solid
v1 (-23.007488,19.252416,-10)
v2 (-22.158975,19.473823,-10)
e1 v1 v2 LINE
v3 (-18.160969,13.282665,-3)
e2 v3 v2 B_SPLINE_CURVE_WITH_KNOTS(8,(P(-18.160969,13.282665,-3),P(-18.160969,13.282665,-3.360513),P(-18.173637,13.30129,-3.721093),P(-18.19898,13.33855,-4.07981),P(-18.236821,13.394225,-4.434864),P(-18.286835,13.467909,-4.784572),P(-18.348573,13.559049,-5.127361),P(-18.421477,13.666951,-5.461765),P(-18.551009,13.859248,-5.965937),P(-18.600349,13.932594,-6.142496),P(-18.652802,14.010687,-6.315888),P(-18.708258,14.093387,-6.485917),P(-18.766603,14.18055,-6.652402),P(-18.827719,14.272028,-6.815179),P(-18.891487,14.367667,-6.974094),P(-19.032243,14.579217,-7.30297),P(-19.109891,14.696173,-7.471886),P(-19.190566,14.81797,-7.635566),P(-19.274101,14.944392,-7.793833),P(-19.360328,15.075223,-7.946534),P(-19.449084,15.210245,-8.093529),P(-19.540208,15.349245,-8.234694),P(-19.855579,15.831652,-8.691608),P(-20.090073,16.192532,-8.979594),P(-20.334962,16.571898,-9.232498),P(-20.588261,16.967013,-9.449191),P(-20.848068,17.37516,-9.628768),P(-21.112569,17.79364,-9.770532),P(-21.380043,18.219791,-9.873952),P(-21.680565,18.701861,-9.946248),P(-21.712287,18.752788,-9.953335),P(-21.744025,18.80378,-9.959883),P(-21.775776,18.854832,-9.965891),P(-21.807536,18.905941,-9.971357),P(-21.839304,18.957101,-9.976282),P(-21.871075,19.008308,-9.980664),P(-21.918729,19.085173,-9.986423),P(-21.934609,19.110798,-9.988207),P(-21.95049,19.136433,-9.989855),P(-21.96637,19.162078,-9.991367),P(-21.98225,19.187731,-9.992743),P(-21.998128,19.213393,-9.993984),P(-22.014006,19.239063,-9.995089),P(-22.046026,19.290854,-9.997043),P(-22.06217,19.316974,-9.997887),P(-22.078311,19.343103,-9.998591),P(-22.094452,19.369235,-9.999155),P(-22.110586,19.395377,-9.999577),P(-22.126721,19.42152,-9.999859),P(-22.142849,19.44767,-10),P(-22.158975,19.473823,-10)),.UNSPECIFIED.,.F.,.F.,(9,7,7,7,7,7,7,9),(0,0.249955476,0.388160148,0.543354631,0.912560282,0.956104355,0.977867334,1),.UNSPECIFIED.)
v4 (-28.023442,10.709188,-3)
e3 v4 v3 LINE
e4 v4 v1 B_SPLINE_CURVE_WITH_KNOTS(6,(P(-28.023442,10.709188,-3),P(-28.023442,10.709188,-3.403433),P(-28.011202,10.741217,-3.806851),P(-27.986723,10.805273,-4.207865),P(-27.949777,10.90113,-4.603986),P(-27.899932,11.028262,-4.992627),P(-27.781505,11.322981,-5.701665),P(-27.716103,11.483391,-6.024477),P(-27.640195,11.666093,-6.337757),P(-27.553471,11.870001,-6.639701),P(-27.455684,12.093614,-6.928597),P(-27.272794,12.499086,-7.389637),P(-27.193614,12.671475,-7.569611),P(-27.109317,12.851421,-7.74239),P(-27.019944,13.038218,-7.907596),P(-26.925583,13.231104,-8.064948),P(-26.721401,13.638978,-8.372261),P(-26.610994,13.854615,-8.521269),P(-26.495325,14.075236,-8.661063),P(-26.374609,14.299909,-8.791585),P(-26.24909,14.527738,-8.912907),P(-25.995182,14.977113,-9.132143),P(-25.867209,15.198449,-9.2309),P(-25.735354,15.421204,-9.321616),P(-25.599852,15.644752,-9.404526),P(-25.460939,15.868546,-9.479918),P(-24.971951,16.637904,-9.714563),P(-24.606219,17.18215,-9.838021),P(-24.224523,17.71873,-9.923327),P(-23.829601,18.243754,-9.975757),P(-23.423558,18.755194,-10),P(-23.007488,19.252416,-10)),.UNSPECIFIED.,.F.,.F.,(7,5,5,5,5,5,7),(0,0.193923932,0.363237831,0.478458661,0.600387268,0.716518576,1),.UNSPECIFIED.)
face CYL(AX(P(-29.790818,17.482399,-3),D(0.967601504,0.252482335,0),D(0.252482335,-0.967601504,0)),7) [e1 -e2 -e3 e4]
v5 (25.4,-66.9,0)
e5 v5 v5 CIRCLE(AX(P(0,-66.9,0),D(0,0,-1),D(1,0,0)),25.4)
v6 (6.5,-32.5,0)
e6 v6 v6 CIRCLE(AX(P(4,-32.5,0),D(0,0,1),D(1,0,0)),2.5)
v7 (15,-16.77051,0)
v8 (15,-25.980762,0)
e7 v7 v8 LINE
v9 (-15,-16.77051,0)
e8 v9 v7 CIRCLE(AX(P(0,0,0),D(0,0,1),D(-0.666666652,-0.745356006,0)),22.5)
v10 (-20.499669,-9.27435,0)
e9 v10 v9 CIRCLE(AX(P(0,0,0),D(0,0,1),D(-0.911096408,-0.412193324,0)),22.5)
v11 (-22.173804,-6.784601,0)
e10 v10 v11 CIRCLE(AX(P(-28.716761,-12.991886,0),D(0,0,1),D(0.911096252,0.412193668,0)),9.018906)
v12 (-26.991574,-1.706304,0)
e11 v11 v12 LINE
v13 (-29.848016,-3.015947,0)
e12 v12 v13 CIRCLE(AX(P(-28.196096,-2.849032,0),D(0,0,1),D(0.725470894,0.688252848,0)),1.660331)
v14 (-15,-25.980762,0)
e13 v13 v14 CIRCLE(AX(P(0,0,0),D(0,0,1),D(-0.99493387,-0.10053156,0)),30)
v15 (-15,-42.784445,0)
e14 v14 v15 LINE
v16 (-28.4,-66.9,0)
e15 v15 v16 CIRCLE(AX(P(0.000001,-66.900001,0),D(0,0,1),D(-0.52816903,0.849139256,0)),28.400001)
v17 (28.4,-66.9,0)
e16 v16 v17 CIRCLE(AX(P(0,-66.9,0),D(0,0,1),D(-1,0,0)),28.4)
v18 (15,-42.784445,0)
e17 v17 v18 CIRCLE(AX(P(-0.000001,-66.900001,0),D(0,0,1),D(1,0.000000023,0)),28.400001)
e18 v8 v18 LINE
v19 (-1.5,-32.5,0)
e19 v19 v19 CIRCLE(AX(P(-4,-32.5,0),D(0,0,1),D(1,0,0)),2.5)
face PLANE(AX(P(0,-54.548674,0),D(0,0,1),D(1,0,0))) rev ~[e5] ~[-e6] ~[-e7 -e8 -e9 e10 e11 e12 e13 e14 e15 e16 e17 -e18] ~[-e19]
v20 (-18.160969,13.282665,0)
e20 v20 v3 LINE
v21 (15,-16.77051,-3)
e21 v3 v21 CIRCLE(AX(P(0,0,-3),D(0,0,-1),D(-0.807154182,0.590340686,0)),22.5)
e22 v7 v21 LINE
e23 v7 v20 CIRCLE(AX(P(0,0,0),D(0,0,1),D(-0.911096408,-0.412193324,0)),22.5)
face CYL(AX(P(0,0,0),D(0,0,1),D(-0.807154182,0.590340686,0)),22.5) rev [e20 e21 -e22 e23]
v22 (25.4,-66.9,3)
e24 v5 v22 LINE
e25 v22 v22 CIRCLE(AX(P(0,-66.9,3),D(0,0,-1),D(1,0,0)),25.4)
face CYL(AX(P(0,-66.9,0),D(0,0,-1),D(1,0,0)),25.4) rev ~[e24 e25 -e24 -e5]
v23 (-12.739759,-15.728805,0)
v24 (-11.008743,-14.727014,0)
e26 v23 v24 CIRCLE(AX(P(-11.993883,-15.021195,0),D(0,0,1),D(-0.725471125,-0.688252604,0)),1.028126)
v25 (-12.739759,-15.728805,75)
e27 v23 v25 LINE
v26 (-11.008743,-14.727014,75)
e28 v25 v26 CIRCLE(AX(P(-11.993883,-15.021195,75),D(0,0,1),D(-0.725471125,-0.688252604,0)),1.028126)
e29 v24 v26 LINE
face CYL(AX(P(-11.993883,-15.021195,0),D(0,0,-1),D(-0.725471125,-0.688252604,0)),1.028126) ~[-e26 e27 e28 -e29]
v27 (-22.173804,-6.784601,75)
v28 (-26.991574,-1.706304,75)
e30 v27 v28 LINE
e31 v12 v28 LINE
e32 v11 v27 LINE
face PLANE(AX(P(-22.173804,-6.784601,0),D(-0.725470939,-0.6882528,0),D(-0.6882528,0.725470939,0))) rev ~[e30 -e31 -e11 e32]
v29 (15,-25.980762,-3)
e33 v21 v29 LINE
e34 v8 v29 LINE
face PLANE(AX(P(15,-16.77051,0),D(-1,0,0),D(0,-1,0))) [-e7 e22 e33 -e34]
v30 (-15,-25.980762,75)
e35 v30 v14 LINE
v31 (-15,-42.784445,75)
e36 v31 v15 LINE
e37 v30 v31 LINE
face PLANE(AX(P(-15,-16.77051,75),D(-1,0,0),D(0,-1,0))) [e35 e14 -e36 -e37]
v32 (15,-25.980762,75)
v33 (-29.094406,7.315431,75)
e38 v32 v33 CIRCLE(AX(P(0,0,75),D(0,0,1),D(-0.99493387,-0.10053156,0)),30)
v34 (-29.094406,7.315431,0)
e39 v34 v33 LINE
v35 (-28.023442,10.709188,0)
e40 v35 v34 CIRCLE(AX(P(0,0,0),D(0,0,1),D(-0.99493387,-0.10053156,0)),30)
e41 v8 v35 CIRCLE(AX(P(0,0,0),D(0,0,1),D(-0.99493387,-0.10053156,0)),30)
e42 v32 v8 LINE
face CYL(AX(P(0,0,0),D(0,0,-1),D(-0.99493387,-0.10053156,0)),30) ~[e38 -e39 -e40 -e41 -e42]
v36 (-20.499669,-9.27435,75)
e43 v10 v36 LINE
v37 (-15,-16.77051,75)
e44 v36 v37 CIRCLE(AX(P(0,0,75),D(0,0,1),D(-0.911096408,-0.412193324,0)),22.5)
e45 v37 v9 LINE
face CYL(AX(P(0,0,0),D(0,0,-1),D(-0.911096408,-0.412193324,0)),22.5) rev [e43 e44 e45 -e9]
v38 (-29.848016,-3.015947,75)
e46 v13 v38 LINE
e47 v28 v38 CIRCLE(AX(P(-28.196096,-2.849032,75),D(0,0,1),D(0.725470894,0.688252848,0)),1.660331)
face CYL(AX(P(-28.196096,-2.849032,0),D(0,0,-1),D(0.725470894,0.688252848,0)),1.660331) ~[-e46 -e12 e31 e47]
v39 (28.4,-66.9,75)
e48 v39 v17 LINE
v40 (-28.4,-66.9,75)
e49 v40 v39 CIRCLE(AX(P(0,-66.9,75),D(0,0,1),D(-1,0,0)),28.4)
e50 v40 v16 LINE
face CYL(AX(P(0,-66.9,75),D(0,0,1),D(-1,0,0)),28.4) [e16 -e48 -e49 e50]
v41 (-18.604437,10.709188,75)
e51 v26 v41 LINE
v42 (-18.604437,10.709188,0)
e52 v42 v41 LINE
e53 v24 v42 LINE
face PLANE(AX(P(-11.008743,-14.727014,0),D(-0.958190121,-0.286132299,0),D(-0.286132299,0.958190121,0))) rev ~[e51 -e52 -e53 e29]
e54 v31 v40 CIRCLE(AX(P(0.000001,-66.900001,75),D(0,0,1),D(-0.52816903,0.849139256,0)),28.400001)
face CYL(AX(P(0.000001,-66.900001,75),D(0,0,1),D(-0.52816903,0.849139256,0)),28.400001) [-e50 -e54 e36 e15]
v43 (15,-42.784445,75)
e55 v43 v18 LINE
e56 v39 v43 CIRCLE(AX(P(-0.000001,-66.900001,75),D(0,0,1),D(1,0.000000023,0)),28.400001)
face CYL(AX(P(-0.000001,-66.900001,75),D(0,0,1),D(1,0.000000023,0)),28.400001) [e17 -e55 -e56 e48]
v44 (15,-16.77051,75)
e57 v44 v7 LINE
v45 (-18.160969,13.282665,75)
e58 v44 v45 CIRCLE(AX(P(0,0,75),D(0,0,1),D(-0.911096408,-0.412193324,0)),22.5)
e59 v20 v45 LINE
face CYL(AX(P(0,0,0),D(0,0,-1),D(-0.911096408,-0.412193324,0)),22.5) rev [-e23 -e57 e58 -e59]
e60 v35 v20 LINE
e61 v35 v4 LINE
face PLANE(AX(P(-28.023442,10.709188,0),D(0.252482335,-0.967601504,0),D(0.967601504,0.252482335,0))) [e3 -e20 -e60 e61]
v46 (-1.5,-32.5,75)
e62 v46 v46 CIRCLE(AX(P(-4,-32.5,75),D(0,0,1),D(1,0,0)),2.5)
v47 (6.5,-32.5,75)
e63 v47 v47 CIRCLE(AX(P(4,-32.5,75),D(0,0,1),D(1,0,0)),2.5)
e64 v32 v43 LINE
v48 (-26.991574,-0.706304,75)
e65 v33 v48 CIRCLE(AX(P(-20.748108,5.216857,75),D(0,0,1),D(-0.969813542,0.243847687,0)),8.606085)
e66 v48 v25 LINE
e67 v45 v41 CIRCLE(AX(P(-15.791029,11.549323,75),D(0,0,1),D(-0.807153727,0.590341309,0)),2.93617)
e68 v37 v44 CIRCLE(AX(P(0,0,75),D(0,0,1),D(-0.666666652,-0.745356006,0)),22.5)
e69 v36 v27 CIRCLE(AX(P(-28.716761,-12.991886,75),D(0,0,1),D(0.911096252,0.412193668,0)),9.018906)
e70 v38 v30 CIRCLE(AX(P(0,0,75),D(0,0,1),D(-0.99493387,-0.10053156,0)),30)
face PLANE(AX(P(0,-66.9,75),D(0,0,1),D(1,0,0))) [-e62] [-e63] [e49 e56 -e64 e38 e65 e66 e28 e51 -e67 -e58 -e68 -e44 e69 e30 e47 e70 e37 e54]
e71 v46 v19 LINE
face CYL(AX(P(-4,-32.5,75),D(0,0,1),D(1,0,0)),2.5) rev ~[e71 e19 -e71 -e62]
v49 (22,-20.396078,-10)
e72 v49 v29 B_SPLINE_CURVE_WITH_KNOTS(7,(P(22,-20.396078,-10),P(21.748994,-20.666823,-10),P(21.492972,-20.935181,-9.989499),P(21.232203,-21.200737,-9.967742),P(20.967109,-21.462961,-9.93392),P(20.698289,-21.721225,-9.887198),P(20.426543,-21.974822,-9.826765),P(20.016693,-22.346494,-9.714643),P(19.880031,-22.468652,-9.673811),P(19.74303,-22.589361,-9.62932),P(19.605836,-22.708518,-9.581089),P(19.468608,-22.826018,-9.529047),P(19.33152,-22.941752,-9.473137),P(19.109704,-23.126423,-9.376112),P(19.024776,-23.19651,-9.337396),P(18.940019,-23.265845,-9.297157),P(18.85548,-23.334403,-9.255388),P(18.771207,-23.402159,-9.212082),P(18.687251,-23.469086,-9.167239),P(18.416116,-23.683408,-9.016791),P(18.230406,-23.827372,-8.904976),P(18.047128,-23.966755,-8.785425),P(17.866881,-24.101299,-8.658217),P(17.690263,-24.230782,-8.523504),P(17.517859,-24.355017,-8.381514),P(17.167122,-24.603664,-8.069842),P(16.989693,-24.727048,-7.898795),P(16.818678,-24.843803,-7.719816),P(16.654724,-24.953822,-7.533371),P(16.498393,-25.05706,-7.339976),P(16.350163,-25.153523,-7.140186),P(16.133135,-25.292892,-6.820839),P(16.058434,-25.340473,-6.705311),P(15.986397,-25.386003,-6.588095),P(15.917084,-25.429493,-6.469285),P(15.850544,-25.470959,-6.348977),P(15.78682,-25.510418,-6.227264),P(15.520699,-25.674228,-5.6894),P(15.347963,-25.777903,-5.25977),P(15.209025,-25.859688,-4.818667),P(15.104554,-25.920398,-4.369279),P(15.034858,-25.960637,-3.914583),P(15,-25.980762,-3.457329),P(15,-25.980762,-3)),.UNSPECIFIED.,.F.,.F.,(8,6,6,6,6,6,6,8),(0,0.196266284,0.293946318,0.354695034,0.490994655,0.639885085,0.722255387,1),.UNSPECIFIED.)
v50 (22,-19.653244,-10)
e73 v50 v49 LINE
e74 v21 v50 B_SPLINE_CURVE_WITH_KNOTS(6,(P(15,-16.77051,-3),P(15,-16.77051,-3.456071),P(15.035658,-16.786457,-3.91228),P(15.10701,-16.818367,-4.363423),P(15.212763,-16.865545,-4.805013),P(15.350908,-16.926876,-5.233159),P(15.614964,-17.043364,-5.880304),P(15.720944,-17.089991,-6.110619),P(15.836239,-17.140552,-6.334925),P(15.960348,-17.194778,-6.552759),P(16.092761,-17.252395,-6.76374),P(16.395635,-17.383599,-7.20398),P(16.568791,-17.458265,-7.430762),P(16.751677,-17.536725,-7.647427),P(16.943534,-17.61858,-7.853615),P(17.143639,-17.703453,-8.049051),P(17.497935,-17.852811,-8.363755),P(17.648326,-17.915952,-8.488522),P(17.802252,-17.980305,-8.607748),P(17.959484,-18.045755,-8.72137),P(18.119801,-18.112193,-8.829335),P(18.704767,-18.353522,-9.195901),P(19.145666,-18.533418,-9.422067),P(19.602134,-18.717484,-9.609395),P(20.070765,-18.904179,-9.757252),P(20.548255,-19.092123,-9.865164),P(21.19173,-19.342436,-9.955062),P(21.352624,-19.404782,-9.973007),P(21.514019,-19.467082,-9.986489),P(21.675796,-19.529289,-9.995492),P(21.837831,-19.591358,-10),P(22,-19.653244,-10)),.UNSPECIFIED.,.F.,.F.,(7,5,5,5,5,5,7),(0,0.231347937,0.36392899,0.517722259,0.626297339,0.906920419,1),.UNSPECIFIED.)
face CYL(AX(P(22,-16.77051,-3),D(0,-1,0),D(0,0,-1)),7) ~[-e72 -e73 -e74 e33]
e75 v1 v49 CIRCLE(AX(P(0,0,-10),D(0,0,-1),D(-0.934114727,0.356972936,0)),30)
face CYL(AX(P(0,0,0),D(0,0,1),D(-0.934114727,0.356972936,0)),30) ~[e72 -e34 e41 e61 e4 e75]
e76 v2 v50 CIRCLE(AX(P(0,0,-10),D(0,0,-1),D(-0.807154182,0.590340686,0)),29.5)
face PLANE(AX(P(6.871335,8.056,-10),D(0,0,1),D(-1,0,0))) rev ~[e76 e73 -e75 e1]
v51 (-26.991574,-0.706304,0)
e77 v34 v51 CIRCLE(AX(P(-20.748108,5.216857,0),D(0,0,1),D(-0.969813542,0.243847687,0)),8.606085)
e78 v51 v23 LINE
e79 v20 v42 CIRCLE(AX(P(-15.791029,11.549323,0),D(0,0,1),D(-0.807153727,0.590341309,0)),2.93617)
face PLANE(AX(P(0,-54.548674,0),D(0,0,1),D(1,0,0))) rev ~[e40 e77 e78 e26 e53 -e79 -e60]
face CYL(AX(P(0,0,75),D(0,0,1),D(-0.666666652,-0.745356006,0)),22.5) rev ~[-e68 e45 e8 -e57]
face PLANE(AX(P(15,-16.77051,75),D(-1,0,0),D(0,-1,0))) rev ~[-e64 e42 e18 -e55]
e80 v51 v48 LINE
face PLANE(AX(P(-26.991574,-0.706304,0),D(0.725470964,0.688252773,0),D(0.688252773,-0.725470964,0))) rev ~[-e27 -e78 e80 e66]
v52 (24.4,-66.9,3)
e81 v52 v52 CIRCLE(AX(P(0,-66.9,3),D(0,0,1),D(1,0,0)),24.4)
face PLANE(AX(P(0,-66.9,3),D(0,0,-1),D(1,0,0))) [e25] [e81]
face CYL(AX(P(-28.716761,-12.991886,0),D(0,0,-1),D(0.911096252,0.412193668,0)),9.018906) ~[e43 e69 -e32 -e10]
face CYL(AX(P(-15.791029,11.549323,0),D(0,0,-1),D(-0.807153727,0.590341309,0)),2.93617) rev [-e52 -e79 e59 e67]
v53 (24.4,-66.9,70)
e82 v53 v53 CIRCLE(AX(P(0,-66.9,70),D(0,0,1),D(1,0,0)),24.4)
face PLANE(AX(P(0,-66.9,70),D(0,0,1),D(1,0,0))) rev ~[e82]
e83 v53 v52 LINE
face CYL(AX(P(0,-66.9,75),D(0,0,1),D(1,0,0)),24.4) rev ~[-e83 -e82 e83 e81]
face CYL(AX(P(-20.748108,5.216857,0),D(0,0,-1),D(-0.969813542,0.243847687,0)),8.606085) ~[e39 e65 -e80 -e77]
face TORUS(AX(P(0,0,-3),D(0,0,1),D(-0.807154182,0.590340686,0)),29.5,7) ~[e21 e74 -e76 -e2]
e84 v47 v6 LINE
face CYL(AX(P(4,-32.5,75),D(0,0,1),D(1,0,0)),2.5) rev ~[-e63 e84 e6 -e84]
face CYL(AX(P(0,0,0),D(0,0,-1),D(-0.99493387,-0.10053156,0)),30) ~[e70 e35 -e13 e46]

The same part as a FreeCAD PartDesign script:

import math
import FreeCAD as App
import Part
import Sketcher

V = App.Vector


def edges_at(feature, points):
    """Names of the edges that pass closest to the given points."""
    edges = feature.Shape.Edges
    near = lambda p: min(range(len(edges)), key=lambda i: edges[i].distToShape(Part.Vertex(*p))[0])
    return sorted({f"Edge{near(p) + 1}" for p in points})

doc = App.newDocument("Part")
body = doc.addObject("PartDesign::Body", "Body")

sketch1 = doc.addObject("Sketcher::SketchObject", "Sketch")
body.addObject(sketch1)
sketch1.AttachmentSupport = (doc.XY_Plane, [""])
sketch1.MapMode = "FlatFace"
sketch1.addGeometry([
    Part.ArcOfCircle(Part.Circle(V(0, 0, 0), V(0, 0, 1), 30), math.radians(-174.230219), math.radians(165.886253)),
    Part.ArcOfCircle(Part.Circle(V(-20.748108, 5.216857, 0), V(0, 0, 1), 8.606085), math.radians(165.886254), math.radians(223.491949)),
    Part.LineSegment(V(-26.991574, -0.706304, 0), V(-12.739759, -15.728805, 0)),
    Part.ArcOfCircle(Part.Circle(V(-11.993883, -15.021195, 0), V(0, 0, 1), 1.028126), math.radians(-136.508054), math.radians(16.626568)),
    Part.LineSegment(V(-11.008743, -14.727014, 0), V(-18.604437, 10.709188, 0)),
    Part.ArcOfCircle(Part.Circle(V(-15.791029, 11.549323, 0), V(0, 0, 1), 2.93617), math.radians(143.818768), math.radians(196.626577)),
    Part.ArcOfCircle(Part.Circle(V(0, 0, 0), V(0, 0, 1), 22.5), math.radians(-155.657309), math.radians(143.818812)),
    Part.ArcOfCircle(Part.Circle(V(-28.716761, -12.991886, 0), V(0, 0, 1), 9.018906), math.radians(24.342712), math.radians(43.491941)),
    Part.LineSegment(V(-22.173804, -6.784601, 0), V(-26.991574, -1.706304, 0)),
    Part.ArcOfCircle(Part.Circle(V(-28.196096, -2.849032, 0), V(0, 0, 1), 1.660331), math.radians(43.491965), math.radians(185.769764)),
], False)
sketch1.addConstraint([
    Sketcher.Constraint("Coincident", 0, 2, 1, 1),
    Sketcher.Constraint("Coincident", 1, 2, 2, 1),
    Sketcher.Constraint("Coincident", 2, 2, 3, 1),
    Sketcher.Constraint("Coincident", 3, 2, 4, 1),
    Sketcher.Constraint("Coincident", 4, 2, 5, 2),
    Sketcher.Constraint("Coincident", 5, 1, 6, 2),
    Sketcher.Constraint("Coincident", 6, 1, 7, 1),
    Sketcher.Constraint("Coincident", 7, 2, 8, 1),
    Sketcher.Constraint("Coincident", 8, 2, 9, 1),
    Sketcher.Constraint("Coincident", 9, 2, 0, 1),
    Sketcher.Constraint("Coincident", 0, 3, -1, 1),
    Sketcher.Constraint("Coincident", 6, 3, -1, 1),
    Sketcher.Constraint("Radius", 0, 30.0),
    Sketcher.Constraint("Radius", 6, 22.5),
    Sketcher.Constraint("Distance", 8, 7.000001),
    Sketcher.Constraint("DistanceY", 8, 2, 1, 2, 1.0),
    Sketcher.Constraint("Radius", 5, 2.93617),
    Sketcher.Constraint("Radius", 9, 1.660331),
    Sketcher.Constraint("Radius", 1, 8.606085),
    Sketcher.Constraint("Radius", 3, 1.028126),
    Sketcher.Constraint("Radius", 7, 9.018906),
    Sketcher.Constraint("DistanceX", 7, 3, 2, 2, 15.977002),
    Sketcher.Constraint("DistanceY", 7, 2, -1, 1, 6.784601),
    Sketcher.Constraint("DistanceX", 0, 2, 1, 3, 8.346298),
    Sketcher.Constraint("Distance", 2, 20.707239),
    Sketcher.Constraint("Distance", 4, 26.546091),
    Sketcher.Constraint("DistanceX", 5, 3, -1, 1, 15.791029),
    Sketcher.Constraint("DistanceX", 7, 3, -1, 1, 28.716761),
    Sketcher.Constraint("DistanceY", 9, 3, -1, 1, 2.849032),
    Sketcher.Constraint("DistanceY", -1, 1, 0, 2, 7.315431),
    Sketcher.Constraint("DistanceX", 5, 1, -1, 1, 18.160969),
    Sketcher.Constraint("DistanceX", 6, 1, -1, 1, 20.499669),
    Sketcher.Constraint("DistanceY", 3, 3, 1, 3, 20.238051),
    Sketcher.Constraint("DistanceX", 3, 3, 3, 2, 0.98514),
    Sketcher.Constraint("DistanceX", 9, 2, 9, 3, 1.65192),
])
pad1 = doc.addObject("PartDesign::Pad", "Pad")
body.addObject(pad1)
pad1.Profile = sketch1
pad1.Length = 75

sketch2 = doc.addObject("Sketcher::SketchObject", "Sketch001")
body.addObject(sketch2)
sketch2.AttachmentSupport = (doc.XY_Plane, [""])
sketch2.MapMode = "FlatFace"
sketch2.AttachmentOffset = App.Placement(V(0, 0, 75), App.Rotation())
sketch2.addGeometry([
    Part.ArcOfCircle(Part.Circle(V(0, -66.9, 0), V(0, 0, 1), 28.4), math.radians(180), math.radians(360)),
    Part.ArcOfCircle(Part.Circle(V(-0.000001, -66.900001, 0), V(0, 0, 1), 28.400001), math.radians(0.000001), math.radians(58.118173)),
    Part.LineSegment(V(15, -42.784445, 0), V(15, -16.77051, 0)),
    Part.ArcOfCircle(Part.Circle(V(0, 0, 0), V(0, 0, 1), 22.5), math.radians(-131.810314), math.radians(-48.189686)),
    Part.LineSegment(V(-15, -16.77051, 0), V(-15, -42.784445, 0)),
    Part.ArcOfCircle(Part.Circle(V(0.000001, -66.900001, 0), V(0, 0, 1), 28.400001), math.radians(121.881827), math.radians(179.999999)),
    Part.Circle(V(0, -66.9, 0), V(0, 0, 1), 24.4),
    Part.Circle(V(-4, -32.5, 0), V(0, 0, 1), 2.5),
    Part.Circle(V(4, -32.5, 0), V(0, 0, 1), 2.5),
], False)
sketch2.addConstraint([
    Sketcher.Constraint("Tangent", 0, 2, 1, 1),
    Sketcher.Constraint("Coincident", 1, 2, 2, 1),
    Sketcher.Constraint("Coincident", 2, 2, 3, 2),
    Sketcher.Constraint("Coincident", 3, 1, 4, 1),
    Sketcher.Constraint("Coincident", 4, 2, 5, 1),
    Sketcher.Constraint("Tangent", 5, 2, 0, 1),
    Sketcher.Constraint("Vertical", 2),
    Sketcher.Constraint("Vertical", 4),
    Sketcher.Constraint("Coincident", 3, 3, -1, 1),
    Sketcher.Constraint("Coincident", 6, 3, 0, 3),
    Sketcher.Constraint("Equal", 0, 1),
    Sketcher.Constraint("Equal", 1, 5),
    Sketcher.Constraint("Equal", 7, 8),
    Sketcher.Constraint("Symmetric", 7, 3, 8, 3, -2),
    Sketcher.Constraint("Symmetric", 1, 2, 4, 2, -2),
    Sketcher.Constraint("Horizontal", 6, 3, 0, 2),
    Sketcher.Constraint("Horizontal", 0, 2, 5, 2),
    Sketcher.Constraint("Diameter", 7, 5.0),
    Sketcher.Constraint("Diameter", 6, 48.8),
    Sketcher.Constraint("Radius", 0, 28.4),
    Sketcher.Constraint("Radius", 3, 22.5),
    Sketcher.Constraint("DistanceX", 7, 3, -1, 1, 4.0),
    Sketcher.Constraint("DistanceX", -1, 1, 1, 2, 15.0),
    Sketcher.Constraint("DistanceY", 0, 3, -1, 1, 66.9),
    Sketcher.Constraint("DistanceY", 7, 3, -1, 1, 32.5),
])
pad2 = doc.addObject("PartDesign::Pad", "Pad001")
body.addObject(pad2)
pad2.Profile = sketch2
pad2.Length = 75
pad2.Reversed = True

sketch3 = doc.addObject("Sketcher::SketchObject", "Sketch002")
body.addObject(sketch3)
sketch3.AttachmentSupport = (doc.XY_Plane, [""])
sketch3.MapMode = "FlatFace"
sketch3.AttachmentOffset = App.Placement(V(0, 0, 75), App.Rotation())
sketch3.addGeometry(Part.Circle(V(0, -66.9, 0), V(0, 0, 1), 24.4), False)
sketch3.addConstraint([
    Sketcher.Constraint("PointOnObject", 0, 3, -2),
    Sketcher.Constraint("Diameter", 0, 48.8),
    Sketcher.Constraint("DistanceY", 0, 3, -1, 1, 66.9),
])
pad3 = doc.addObject("PartDesign::Pad", "Pad002")
body.addObject(pad3)
pad3.Profile = sketch3
pad3.Length = 5
pad3.Reversed = True

sketch4 = doc.addObject("Sketcher::SketchObject", "Sketch003")
body.addObject(sketch4)
sketch4.AttachmentSupport = (doc.XY_Plane, [""])
sketch4.MapMode = "FlatFace"
sketch4.addGeometry(Part.Circle(V(0, -66.9, 0), V(0, 0, 1), 25.4), False)
sketch4.addConstraint([
    Sketcher.Constraint("PointOnObject", 0, 3, -2),
    Sketcher.Constraint("Diameter", 0, 50.8),
    Sketcher.Constraint("DistanceY", 0, 3, -1, 1, 66.9),
])
pocket1 = doc.addObject("PartDesign::Pocket", "Pocket")
body.addObject(pocket1)
pocket1.Profile = sketch4
pocket1.Length = 3
pocket1.Reversed = True

sketch5 = doc.addObject("Sketcher::SketchObject", "Sketch004")
body.addObject(sketch5)
sketch5.AttachmentSupport = (doc.XY_Plane, [""])
sketch5.MapMode = "FlatFace"
sketch5.addGeometry([
    Part.LineSegment(V(-18.160969, 13.282665, 0), V(-28.023442, 10.709188, 0)),
    Part.ArcOfCircle(Part.Circle(V(0, 0, 0), V(0, 0, 1), 30), math.radians(-59.999999), math.radians(159.08559)),
    Part.LineSegment(V(15, -25.980762, 0), V(15, -16.77051, 0)),
    Part.ArcOfCircle(Part.Circle(V(0, 0, 0), V(0, 0, 1), 22.5), math.radians(-48.189685), math.radians(143.818812)),
], False)
sketch5.addConstraint([
    Sketcher.Constraint("Coincident", 0, 2, 1, 2),
    Sketcher.Constraint("Coincident", 1, 1, 2, 1),
    Sketcher.Constraint("Coincident", 2, 2, 3, 1),
    Sketcher.Constraint("Coincident", 3, 2, 0, 1),
    Sketcher.Constraint("Vertical", 2),
    Sketcher.Constraint("Coincident", 1, 3, -1, 1),
    Sketcher.Constraint("Coincident", 3, 3, -1, 1),
    Sketcher.Constraint("Radius", 1, 30.0),
    Sketcher.Constraint("Radius", 3, 22.5),
    Sketcher.Constraint("DistanceX", -1, 1, 1, 1, 15.0),
    Sketcher.Constraint("Distance", 0, 10.192701),
    Sketcher.Constraint("DistanceX", 0, 2, -1, 1, 28.023442),
])
pad4 = doc.addObject("PartDesign::Pad", "Pad003")
body.addObject(pad4)
pad4.Profile = sketch5
pad4.Length = 10
pad4.Reversed = True
doc.recompute()

fillet = doc.addObject("PartDesign::Fillet", "Fillet")
body.addObject(fillet)
fillet.Base = (pad4, edges_at(pad4, [(15.109, 16.672, -10), (-23.092, 11.996, -10), (15, -21.376, -10)]))
fillet.Radius = 7

doc.recompute()
